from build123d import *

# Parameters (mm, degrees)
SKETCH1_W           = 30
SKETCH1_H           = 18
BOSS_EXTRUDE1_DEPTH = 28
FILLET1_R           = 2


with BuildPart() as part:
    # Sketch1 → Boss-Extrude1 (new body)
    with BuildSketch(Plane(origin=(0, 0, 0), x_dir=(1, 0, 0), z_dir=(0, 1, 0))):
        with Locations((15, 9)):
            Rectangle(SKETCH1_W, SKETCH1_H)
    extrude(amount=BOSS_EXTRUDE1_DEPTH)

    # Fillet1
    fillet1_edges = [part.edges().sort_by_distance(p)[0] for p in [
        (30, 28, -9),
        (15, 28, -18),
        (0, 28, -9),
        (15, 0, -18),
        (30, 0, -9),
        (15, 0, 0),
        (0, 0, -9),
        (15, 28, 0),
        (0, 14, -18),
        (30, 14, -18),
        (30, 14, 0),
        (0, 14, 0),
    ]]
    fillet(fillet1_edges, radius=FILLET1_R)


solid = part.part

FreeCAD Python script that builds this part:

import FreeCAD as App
import Part
import Sketcher
Q = App.Units.Quantity


def add_polygon(sketch, points):
    """Adds a closed chain of lines whose ends are joined by coincident constraints."""
    first, n = sketch.GeometryCount, len(points)
    for a, b in zip(points, points[1:] + points[:1]):
        sketch.addGeometry(Part.LineSegment(App.Vector(*a, 0), App.Vector(*b, 0)), False)
    for i in range(n):
        sketch.addConstraint(Sketcher.Constraint("Coincident", first + i, 2, first + (i + 1) % n, 1))

doc = App.newDocument("Part")
body = doc.addObject("PartDesign::Body", "Body")

# Sketch on XZ plane
sketch1 = doc.addObject("Sketcher::SketchObject", "Sketch")
body.addObject(sketch1)
sketch1.AttachmentSupport = (doc.XZ_Plane, [""])
sketch1.MapMode = "FlatFace"
add_polygon(sketch1, [(0, -18), (0, 0), (30, 0), (30, -18)])  # lines 0-3
sketch1.addConstraint(Sketcher.Constraint("Vertical", 0))
sketch1.addConstraint(Sketcher.Constraint("Horizontal", 1))
sketch1.addConstraint(Sketcher.Constraint("Vertical", 2))
sketch1.addConstraint(Sketcher.Constraint("Horizontal", 3))
sketch1.addConstraint(Sketcher.Constraint("Coincident", 0, 2, -1, 1))
sketch1.addConstraint(Sketcher.Constraint("DistanceX", 1, 1, 1, 2, Q("30 mm")))
sketch1.addConstraint(Sketcher.Constraint("DistanceY", 0, 1, 0, 2, Q("18 mm")))
pad1 = doc.addObject("PartDesign::Pad", "Pad")
body.addObject(pad1)
pad1.Profile = sketch1
pad1.Length = 28
pad1.Reversed = True
doc.recompute()

fillet = doc.addObject("PartDesign::Fillet", "Fillet")
body.addObject(fillet)
fillet.Base = (pad1, ["Edge1"])
fillet.UseAllEdges = True
fillet.Radius = 2

doc.recompute()
